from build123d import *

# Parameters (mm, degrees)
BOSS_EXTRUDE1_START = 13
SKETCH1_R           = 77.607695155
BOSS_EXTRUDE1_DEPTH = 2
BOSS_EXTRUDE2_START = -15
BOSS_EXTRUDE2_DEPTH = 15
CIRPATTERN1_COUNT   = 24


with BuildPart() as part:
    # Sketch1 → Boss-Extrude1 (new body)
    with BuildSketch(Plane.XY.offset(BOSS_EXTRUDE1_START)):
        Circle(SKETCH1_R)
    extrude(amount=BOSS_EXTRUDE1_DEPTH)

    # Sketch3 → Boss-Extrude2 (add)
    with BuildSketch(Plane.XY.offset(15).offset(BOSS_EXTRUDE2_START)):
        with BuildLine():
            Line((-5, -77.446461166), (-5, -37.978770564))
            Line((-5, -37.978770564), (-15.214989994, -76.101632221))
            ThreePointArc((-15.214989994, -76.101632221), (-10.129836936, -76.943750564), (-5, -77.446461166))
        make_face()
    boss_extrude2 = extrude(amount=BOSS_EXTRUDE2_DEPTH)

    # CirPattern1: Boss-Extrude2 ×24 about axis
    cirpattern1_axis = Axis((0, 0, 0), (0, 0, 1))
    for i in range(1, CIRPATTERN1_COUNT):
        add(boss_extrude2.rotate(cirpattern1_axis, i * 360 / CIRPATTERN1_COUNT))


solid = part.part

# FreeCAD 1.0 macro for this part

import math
import FreeCAD as App
import Part
import Sketcher

V = App.Vector
Q = App.Units.Quantity

doc = App.newDocument("Part")
params = doc.addObject("Spreadsheet::Sheet", "Params")
for row, (alias, value) in enumerate([
    ("pad1_length", "2 mm"),
    ("pad2_length", "15 mm"),
], start=1):
    params.set(f"A{row}", alias)
    params.set(f"B{row}", "=" + value)
    params.setAlias(f"B{row}", alias)

body = doc.addObject("PartDesign::Body", "Body")

sketch1 = body.newObject("Sketcher::SketchObject", "Sketch")
sketch1.AttachmentSupport = (doc.getObject("XY_Plane"), [""])
sketch1.MapMode = "FlatFace"
sketch1.AttachmentOffset = App.Placement(V(0, 0, 13), App.Rotation())
sketch1.addGeometry(Part.Circle(V(0, 0, 0), V(0, 0, 1), 78), False)
sketch1.addConstraint([
    Sketcher.Constraint("Coincident", 0, 3, -1, 1),
    Sketcher.Constraint("Diameter", 0, 155.21539),
])
pad1 = body.newObject("PartDesign::Pad", "Pad")
pad1.Profile = sketch1
pad1.setExpression("Length", "Params.pad1_length")

sketch2 = body.newObject("Sketcher::SketchObject", "Sketch001")
sketch2.AttachmentSupport = (doc.getObject("XY_Plane"), [""])
sketch2.MapMode = "FlatFace"
sketch2.addGeometry([
    Part.LineSegment(V(-5, -77, 0), V(-5, -38, 0)),
    Part.LineSegment(V(-5, -38, 0), V(-15, -76, 0)),
    Part.ArcOfCircle(Part.Circle(V(0, 0, 0), V(0, 0, 1), 78), math.radians(-101.31), math.radians(-93.69)),
], False)
sketch2.addConstraint([
    Sketcher.Constraint("Coincident", 0, 2, 1, 1),
    Sketcher.Constraint("Coincident", 1, 2, 2, 1),
    Sketcher.Constraint("Coincident", 2, 2, 0, 1),
    Sketcher.Constraint("Vertical", 0),
    Sketcher.Constraint("Coincident", 2, 3, -1, 1),
    Sketcher.Constraint("Angle", 1, Q("-105 deg")),
    Sketcher.Constraint("DistanceX", 0, 2, -1, 1, 5.0),
    Sketcher.Constraint("Radius", 2, 77.607695),
    Sketcher.Constraint("DistanceY", 0, 1, 0, 2, 39.467691),
])
pad2 = body.newObject("PartDesign::Pad", "Pad001")
pad2.Profile = sketch2
pad2.setExpression("Length", "Params.pad2_length")
doc.recompute()

polarpattern = body.newObject("PartDesign::PolarPattern", "PolarPattern")
polarpattern.Originals = [pad2]
polarpattern.Axis = (doc.getObject("Z_Axis"), [""])
polarpattern.Angle = 360
polarpattern.Occurrences = 24
body.Tip = polarpattern

doc.recompute()
